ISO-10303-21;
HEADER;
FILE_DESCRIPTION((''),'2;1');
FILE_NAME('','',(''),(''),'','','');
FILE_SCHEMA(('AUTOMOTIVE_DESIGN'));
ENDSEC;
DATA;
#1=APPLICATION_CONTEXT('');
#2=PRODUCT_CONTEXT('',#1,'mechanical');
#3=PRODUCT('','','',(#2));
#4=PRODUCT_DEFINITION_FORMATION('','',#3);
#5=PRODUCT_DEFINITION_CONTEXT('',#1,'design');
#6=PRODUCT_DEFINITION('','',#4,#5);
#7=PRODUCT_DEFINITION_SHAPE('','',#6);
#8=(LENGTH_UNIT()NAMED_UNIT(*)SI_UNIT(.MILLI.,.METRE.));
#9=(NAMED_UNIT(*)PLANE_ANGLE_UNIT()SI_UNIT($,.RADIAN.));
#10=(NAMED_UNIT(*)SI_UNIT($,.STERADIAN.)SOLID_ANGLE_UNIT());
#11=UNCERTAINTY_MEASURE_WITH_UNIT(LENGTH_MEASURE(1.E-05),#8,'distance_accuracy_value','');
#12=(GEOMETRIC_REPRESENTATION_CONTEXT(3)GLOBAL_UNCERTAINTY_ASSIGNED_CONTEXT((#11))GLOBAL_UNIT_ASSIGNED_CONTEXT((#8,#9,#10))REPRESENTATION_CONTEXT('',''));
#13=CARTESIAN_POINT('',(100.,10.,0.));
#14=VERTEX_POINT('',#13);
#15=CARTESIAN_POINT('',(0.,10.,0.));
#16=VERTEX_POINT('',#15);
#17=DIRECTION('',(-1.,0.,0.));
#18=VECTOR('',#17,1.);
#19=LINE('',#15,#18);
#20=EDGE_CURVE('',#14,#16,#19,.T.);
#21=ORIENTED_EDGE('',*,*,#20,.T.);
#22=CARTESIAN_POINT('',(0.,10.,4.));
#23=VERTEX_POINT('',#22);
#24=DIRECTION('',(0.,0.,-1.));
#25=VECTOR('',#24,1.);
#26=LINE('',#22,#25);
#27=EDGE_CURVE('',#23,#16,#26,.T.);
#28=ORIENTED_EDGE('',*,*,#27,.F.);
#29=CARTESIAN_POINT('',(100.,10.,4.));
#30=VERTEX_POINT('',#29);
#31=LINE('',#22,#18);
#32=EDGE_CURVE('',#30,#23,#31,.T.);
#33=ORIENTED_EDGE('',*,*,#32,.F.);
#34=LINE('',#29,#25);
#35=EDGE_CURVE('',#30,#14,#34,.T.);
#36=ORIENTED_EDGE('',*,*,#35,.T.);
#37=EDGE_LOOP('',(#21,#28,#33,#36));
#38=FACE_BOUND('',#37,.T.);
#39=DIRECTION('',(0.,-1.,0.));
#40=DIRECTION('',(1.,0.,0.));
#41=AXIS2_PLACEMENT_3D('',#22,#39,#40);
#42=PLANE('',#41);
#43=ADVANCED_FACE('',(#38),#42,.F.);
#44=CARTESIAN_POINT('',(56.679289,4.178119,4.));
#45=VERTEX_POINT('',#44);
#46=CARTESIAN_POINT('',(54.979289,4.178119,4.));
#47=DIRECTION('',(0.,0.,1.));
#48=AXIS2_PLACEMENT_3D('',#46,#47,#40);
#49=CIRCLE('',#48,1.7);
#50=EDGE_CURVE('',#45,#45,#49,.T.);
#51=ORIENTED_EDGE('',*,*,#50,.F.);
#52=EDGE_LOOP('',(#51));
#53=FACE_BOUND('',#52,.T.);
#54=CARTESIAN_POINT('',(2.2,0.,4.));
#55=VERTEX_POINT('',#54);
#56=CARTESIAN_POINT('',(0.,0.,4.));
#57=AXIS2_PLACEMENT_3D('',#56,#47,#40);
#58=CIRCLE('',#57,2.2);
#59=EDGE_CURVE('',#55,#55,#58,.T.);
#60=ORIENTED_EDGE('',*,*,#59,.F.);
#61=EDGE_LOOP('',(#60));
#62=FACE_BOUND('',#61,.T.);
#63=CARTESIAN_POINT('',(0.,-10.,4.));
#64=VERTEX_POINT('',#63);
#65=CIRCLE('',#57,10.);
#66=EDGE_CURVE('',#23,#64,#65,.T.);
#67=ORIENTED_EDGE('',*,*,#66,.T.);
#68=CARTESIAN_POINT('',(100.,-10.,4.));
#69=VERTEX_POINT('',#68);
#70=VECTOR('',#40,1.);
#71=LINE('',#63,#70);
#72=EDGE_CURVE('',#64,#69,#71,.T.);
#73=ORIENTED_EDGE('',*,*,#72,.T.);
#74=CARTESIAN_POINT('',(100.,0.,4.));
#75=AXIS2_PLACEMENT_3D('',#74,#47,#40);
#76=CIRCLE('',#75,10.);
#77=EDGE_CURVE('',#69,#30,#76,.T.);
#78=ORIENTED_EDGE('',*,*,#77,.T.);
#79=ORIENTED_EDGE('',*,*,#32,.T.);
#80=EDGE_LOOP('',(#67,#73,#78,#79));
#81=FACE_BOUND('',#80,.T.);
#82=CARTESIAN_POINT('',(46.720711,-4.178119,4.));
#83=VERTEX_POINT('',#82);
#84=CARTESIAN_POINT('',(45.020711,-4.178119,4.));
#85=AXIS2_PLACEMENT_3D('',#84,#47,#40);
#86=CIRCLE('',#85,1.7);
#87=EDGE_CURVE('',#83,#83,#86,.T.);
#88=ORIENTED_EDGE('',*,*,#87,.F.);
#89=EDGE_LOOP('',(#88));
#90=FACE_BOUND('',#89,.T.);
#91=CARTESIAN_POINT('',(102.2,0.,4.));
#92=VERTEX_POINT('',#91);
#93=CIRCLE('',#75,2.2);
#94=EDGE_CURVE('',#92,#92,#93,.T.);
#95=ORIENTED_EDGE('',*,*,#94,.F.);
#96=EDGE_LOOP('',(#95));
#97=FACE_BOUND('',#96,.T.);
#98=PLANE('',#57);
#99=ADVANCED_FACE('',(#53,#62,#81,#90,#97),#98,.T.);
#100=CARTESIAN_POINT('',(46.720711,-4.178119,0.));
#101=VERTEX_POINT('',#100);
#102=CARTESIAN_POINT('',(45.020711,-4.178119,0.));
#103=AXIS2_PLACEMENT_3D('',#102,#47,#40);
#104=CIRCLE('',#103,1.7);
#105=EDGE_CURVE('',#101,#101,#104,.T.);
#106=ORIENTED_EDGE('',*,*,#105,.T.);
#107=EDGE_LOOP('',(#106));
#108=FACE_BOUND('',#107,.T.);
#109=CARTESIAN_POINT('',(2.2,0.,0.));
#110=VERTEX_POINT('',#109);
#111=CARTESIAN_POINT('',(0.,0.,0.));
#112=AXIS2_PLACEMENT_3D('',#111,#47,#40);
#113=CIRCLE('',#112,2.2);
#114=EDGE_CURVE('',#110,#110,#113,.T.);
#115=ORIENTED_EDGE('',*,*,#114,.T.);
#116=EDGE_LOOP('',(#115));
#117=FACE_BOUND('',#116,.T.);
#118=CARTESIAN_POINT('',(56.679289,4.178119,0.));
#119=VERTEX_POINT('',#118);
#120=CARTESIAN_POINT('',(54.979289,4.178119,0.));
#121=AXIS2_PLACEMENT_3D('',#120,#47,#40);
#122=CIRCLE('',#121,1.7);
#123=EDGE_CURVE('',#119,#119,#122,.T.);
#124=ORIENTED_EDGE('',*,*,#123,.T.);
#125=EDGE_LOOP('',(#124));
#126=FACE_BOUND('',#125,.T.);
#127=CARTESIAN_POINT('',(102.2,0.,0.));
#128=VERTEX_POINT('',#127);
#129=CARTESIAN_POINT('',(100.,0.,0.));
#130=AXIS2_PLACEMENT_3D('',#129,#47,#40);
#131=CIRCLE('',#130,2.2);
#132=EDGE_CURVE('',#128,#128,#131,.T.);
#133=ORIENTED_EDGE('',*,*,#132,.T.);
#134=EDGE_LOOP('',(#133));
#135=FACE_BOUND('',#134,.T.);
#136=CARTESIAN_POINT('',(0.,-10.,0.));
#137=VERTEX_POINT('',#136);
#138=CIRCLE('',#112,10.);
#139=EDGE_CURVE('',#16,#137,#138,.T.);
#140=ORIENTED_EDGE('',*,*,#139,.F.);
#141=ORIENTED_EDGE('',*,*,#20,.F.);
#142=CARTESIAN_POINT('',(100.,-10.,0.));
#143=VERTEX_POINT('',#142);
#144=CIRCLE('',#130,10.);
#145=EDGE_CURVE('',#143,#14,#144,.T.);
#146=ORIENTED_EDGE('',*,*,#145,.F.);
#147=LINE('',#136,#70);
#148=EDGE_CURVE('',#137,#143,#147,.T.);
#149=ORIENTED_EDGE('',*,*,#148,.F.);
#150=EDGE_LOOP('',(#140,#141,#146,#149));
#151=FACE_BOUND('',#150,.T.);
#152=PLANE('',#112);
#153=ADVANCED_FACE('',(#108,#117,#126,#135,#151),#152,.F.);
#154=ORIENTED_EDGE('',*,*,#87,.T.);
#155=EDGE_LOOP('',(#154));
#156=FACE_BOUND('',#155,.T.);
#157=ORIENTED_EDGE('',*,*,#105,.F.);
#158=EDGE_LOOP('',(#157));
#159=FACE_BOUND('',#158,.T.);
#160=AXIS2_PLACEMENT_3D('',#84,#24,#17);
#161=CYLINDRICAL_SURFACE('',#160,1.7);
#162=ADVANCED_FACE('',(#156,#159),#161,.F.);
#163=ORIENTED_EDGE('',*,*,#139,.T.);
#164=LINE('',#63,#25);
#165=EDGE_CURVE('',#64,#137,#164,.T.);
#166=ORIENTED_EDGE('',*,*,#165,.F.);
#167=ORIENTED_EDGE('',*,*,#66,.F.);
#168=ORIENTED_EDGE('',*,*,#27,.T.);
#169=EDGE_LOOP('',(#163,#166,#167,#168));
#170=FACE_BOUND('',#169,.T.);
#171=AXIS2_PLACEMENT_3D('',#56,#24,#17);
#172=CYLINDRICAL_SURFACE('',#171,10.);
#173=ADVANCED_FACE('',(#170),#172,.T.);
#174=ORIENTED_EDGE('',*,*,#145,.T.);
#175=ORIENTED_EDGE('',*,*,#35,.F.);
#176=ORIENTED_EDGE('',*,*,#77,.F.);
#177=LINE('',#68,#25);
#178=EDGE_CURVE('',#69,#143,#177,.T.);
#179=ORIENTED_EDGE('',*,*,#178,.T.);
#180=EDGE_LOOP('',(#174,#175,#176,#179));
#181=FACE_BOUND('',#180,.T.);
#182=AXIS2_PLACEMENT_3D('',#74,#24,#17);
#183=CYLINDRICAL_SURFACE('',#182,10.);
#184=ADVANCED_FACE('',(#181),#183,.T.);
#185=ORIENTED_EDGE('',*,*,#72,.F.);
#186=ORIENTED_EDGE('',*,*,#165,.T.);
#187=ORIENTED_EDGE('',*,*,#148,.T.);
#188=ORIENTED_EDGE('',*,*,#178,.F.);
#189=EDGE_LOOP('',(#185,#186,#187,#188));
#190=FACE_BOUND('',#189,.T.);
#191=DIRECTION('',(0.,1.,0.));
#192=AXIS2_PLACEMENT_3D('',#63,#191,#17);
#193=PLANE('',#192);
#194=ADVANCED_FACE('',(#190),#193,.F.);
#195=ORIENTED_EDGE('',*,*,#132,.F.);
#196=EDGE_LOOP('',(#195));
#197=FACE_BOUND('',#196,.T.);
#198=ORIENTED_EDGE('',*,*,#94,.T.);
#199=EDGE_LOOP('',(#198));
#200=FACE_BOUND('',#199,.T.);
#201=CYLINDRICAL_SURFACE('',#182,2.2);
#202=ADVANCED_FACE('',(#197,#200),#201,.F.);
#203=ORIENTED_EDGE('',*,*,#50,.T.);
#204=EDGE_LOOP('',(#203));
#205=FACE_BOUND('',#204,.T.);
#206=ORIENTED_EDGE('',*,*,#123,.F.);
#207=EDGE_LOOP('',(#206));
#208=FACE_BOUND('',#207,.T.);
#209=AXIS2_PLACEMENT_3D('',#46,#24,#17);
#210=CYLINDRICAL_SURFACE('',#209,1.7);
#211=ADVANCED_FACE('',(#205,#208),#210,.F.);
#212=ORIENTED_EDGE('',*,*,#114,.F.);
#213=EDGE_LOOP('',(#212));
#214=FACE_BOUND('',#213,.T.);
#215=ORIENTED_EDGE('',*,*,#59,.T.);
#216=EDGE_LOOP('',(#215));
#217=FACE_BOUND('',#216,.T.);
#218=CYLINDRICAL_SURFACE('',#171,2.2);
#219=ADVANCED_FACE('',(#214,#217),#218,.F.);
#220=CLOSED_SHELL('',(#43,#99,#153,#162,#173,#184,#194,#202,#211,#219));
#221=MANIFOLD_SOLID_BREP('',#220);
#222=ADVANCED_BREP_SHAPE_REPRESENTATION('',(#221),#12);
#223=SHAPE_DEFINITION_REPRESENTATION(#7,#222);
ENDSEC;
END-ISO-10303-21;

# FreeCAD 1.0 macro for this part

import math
import FreeCAD as App
import Part
import Sketcher
from FreeCAD import Vector

doc = App.newDocument("Part")
body = doc.addObject("PartDesign::Body", "Body")

# Sketch on XY plane
sketch1 = doc.addObject("Sketcher::SketchObject", "Sketch")
body.addObject(sketch1)
sketch1.AttachmentSupport = (doc.XY_Plane, [""])
sketch1.MapMode = "FlatFace"
sketch1.addGeometry([
    Part.LineSegment(Vector(100, 10, 0), Vector(0, 10, 0)),  # 0
    Part.ArcOfCircle(Part.Circle(Vector(0, 0, 0), Vector(0, 0, 1), 10), math.radians(90), math.radians(270)),  # 1
    Part.LineSegment(Vector(0, -10, 0), Vector(100, -10, 0)),  # 2
    Part.ArcOfCircle(Part.Circle(Vector(100, 0, 0), Vector(0, 0, 1), 10), math.radians(-90), math.radians(90)),  # 3
    Part.Circle(Vector(45, -4.2, 0), Vector(0, 0, 1), 1.7),  # 4
    Part.Circle(Vector(100, 0, 0), Vector(0, 0, 1), 2.2),  # 5
    Part.Circle(Vector(55, 4.2, 0), Vector(0, 0, 1), 1.7),  # 6
    Part.Circle(Vector(0, 0, 0), Vector(0, 0, 1), 2.2),  # 7
], False)
sketch1.addConstraint([
    Sketcher.Constraint("Tangent", 0, 2, 1, 1),
    Sketcher.Constraint("Tangent", 1, 2, 2, 1),
    Sketcher.Constraint("Tangent", 2, 2, 3, 1),
    Sketcher.Constraint("Tangent", 3, 2, 0, 1),
    Sketcher.Constraint("Horizontal", 0),
    Sketcher.Constraint("Horizontal", 2),
    Sketcher.Constraint("Coincident", 1, 3, -1, 1),
    Sketcher.Constraint("Coincident", 7, 3, -1, 1),
    Sketcher.Constraint("Coincident", 5, 3, 3, 3),
    Sketcher.Constraint("Equal", 4, 6),
    Sketcher.Constraint("Equal", 5, 7),
    Sketcher.Constraint("Radius", 1, 10.0),
    Sketcher.Constraint("Diameter", 4, 3.4),
    Sketcher.Constraint("Diameter", 5, 4.4),
    Sketcher.Constraint("DistanceX", 0, 2, 0, 1, 100.0),
    Sketcher.Constraint("DistanceX", -1, 1, 4, 3, 45.020711),
    Sketcher.Constraint("DistanceY", 4, 3, -1, 1, 4.178119),
    Sketcher.Constraint("DistanceX", -1, 1, 6, 3, 54.979289),
    Sketcher.Constraint("DistanceY", -1, 1, 6, 3, 4.178119),
])
pad1 = doc.addObject("PartDesign::Pad", "Pad")
body.addObject(pad1)
pad1.Profile = sketch1
pad1.Length = 4

doc.recompute()
